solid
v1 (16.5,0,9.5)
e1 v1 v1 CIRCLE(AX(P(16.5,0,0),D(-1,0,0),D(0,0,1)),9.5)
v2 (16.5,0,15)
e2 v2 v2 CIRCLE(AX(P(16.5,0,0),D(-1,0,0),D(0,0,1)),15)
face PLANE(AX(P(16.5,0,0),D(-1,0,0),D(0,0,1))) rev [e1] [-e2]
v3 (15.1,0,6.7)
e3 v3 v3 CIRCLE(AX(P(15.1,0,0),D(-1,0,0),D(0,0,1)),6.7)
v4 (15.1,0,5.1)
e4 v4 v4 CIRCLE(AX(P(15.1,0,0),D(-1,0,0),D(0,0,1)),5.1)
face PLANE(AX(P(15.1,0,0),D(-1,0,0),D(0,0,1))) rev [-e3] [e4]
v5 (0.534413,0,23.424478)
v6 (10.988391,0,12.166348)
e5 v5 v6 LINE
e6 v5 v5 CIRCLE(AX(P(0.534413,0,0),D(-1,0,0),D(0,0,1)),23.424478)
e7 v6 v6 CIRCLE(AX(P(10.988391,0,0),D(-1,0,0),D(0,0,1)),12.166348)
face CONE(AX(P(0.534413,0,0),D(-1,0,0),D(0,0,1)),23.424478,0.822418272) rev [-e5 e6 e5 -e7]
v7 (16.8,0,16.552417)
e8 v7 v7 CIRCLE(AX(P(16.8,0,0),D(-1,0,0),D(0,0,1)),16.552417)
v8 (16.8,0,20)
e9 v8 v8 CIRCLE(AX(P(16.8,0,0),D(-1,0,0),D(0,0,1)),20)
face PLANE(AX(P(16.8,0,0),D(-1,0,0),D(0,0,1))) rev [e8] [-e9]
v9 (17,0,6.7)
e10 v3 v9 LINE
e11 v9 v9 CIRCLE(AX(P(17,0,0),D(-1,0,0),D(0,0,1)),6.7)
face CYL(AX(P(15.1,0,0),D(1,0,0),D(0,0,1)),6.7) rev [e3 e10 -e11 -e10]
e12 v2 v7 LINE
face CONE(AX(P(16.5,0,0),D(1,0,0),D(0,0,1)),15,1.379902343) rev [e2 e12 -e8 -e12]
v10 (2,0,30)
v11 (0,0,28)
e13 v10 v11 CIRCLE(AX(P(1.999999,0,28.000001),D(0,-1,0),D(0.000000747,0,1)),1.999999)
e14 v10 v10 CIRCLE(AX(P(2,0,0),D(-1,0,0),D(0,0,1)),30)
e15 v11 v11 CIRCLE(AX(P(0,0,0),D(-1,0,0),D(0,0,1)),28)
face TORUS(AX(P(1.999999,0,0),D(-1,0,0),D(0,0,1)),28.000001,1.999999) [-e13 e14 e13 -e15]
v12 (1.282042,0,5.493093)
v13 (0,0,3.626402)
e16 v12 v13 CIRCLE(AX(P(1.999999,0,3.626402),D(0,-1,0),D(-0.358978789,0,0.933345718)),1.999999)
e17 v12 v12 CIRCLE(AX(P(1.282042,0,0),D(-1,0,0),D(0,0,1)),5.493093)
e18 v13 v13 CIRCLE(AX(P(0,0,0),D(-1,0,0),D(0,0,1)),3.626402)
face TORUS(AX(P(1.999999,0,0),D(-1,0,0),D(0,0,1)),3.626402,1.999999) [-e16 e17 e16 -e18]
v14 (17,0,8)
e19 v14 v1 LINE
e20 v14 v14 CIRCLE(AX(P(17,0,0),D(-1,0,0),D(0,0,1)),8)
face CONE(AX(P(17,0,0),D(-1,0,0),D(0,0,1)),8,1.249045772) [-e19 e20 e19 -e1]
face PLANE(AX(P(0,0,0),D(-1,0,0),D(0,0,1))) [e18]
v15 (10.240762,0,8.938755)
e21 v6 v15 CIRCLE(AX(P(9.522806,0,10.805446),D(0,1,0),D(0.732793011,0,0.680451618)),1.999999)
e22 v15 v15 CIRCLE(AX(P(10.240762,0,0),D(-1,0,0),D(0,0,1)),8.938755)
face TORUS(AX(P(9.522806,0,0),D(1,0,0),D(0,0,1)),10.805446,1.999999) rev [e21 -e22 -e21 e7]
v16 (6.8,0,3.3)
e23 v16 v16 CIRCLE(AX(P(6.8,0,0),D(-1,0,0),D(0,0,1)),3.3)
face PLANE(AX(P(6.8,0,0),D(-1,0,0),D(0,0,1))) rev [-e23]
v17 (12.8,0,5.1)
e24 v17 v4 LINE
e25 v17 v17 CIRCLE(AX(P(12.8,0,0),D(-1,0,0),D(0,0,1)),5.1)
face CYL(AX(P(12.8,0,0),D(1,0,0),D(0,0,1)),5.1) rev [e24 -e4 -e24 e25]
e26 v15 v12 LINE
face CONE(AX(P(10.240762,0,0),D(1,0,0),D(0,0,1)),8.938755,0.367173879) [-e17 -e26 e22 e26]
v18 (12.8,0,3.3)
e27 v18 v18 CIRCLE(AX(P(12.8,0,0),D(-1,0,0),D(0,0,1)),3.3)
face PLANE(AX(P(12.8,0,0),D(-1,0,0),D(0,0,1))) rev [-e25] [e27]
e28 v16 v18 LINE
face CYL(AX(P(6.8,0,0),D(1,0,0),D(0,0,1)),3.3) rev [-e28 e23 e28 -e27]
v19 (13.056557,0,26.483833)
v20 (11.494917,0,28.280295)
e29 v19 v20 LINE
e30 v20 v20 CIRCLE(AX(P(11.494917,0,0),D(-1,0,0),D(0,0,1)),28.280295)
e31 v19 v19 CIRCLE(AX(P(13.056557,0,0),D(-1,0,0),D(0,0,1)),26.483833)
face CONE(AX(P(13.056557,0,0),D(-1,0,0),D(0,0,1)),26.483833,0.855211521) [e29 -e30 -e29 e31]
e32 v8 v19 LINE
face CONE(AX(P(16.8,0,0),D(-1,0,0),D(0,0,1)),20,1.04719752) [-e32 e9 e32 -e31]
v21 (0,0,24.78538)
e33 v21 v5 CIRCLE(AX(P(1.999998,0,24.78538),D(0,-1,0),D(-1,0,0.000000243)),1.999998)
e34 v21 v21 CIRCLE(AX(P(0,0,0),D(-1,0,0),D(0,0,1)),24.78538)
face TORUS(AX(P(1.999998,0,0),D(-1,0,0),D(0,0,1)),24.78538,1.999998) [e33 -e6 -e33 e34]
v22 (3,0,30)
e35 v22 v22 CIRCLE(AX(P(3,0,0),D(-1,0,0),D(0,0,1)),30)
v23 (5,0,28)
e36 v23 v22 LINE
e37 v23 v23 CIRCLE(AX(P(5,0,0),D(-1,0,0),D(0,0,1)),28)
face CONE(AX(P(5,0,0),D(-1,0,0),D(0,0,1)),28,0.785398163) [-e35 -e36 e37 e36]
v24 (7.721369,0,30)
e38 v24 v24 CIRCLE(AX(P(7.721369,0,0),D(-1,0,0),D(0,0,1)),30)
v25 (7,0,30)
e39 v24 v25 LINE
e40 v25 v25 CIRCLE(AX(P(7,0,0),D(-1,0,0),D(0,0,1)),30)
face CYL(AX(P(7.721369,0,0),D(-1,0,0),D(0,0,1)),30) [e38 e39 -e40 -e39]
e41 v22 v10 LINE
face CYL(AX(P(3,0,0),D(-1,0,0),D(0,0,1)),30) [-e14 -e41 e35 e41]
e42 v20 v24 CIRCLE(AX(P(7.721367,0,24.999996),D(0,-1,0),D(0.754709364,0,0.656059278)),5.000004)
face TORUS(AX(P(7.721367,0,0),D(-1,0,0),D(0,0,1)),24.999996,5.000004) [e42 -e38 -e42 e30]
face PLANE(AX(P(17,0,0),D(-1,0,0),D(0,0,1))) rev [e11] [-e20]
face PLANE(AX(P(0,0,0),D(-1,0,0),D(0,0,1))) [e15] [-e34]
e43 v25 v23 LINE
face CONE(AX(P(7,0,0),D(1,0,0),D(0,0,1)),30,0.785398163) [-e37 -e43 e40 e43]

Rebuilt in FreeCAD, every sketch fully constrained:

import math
import FreeCAD as App
import Part
import Sketcher
from FreeCAD import Vector
Q = App.Units.Quantity

doc = App.newDocument("Part")
body = doc.addObject("PartDesign::Body", "Body")

sketch1 = doc.addObject("Sketcher::SketchObject", "Sketch")
body.addObject(sketch1)
sketch1.AttachmentSupport = (doc.XZ_Plane, [""])
sketch1.MapMode = "FlatFace"
sketch1.addGeometry(Part.LineSegment(Vector(0, 3.6, 0), Vector(0, 0, 0)), False)
sketch1.addGeometry(Part.LineSegment(Vector(0, 0, 0), Vector(6.8, 0, 0)), False)
sketch1.addGeometry(Part.LineSegment(Vector(6.8, 0, 0), Vector(6.8, 3.3, 0)), False)
sketch1.addGeometry(Part.LineSegment(Vector(6.8, 3.3, 0), Vector(12.8, 3.3, 0)), False)
sketch1.addGeometry(Part.LineSegment(Vector(12.8, 3.3, 0), Vector(12.8, 5.1, 0)), False)
sketch1.addGeometry(Part.LineSegment(Vector(12.8, 5.1, 0), Vector(15.1, 5.1, 0)), False)
sketch1.addGeometry(Part.LineSegment(Vector(15.1, 5.1, 0), Vector(15.1, 6.7, 0)), False)
sketch1.addGeometry(Part.LineSegment(Vector(15.1, 6.7, 0), Vector(17, 6.7, 0)), False)
sketch1.addGeometry(Part.LineSegment(Vector(17, 6.7, 0), Vector(17, 8, 0)), False)
sketch1.addGeometry(Part.LineSegment(Vector(17, 8, 0), Vector(16.5, 9.5, 0)), False)
sketch1.addGeometry(Part.LineSegment(Vector(16.5, 9.5, 0), Vector(16.5, 15, 0)), False)
sketch1.addGeometry(Part.LineSegment(Vector(16.5, 15, 0), Vector(16.8, 16.6, 0)), False)
sketch1.addGeometry(Part.LineSegment(Vector(16.8, 16.6, 0), Vector(16.8, 20, 0)), False)
sketch1.addGeometry(Part.LineSegment(Vector(16.8, 20, 0), Vector(13.1, 26.5, 0)), False)
sketch1.addGeometry(Part.LineSegment(Vector(13.1, 26.5, 0), Vector(11.5, 28.3, 0)), False)
sketch1.addGeometry(Part.ArcOfCircle(Part.Circle(Vector(7.7, 25, 0), Vector(0, 0, 1), 5), math.radians(41), math.radians(90)), False)
sketch1.addGeometry(Part.LineSegment(Vector(7.7, 30, 0), Vector(7, 30, 0)), False)
sketch1.addGeometry(Part.LineSegment(Vector(7, 30, 0), Vector(5, 28, 0)), False)
sketch1.addGeometry(Part.LineSegment(Vector(5, 28, 0), Vector(3, 30, 0)), False)
sketch1.addGeometry(Part.LineSegment(Vector(3, 30, 0), Vector(2, 30, 0)), False)
sketch1.addGeometry(Part.ArcOfCircle(Part.Circle(Vector(2, 28, 0), Vector(0, 0, 1), 2), math.radians(90), math.radians(180)), False)
sketch1.addGeometry(Part.LineSegment(Vector(0, 28, 0), Vector(0, 24.8, 0)), False)
sketch1.addGeometry(Part.ArcOfCircle(Part.Circle(Vector(2, 24.8, 0), Vector(0, 0, 1), 2), math.radians(180), math.radians(223)), False)
sketch1.addGeometry(Part.LineSegment(Vector(0.5, 23.4, 0), Vector(11, 12.2, 0)), False)
sketch1.addGeometry(Part.ArcOfCircle(Part.Circle(Vector(9.5, 10.8, 0), Vector(0, 0, 1), 2), math.radians(-69), math.radians(43)), False)
sketch1.addGeometry(Part.LineSegment(Vector(10.2, 8.9, 0), Vector(1.3, 5.5, 0)), False)
sketch1.addGeometry(Part.ArcOfCircle(Part.Circle(Vector(2, 3.6, 0), Vector(0, 0, 1), 2), math.radians(111), math.radians(180)), False)
sketch1.addConstraint(Sketcher.Constraint("Coincident", 0, 2, 1, 1))
sketch1.addConstraint(Sketcher.Constraint("Coincident", 1, 2, 2, 1))
sketch1.addConstraint(Sketcher.Constraint("Coincident", 2, 2, 3, 1))
sketch1.addConstraint(Sketcher.Constraint("Coincident", 3, 2, 4, 1))
sketch1.addConstraint(Sketcher.Constraint("Coincident", 4, 2, 5, 1))
sketch1.addConstraint(Sketcher.Constraint("Coincident", 5, 2, 6, 1))
sketch1.addConstraint(Sketcher.Constraint("Coincident", 6, 2, 7, 1))
sketch1.addConstraint(Sketcher.Constraint("Coincident", 7, 2, 8, 1))
sketch1.addConstraint(Sketcher.Constraint("Coincident", 8, 2, 9, 1))
sketch1.addConstraint(Sketcher.Constraint("Coincident", 9, 2, 10, 1))
sketch1.addConstraint(Sketcher.Constraint("Coincident", 10, 2, 11, 1))
sketch1.addConstraint(Sketcher.Constraint("Coincident", 11, 2, 12, 1))
sketch1.addConstraint(Sketcher.Constraint("Coincident", 12, 2, 13, 1))
sketch1.addConstraint(Sketcher.Constraint("Coincident", 13, 2, 14, 1))
sketch1.addConstraint(Sketcher.Constraint("Tangent", 14, 2, 15, 1))
sketch1.addConstraint(Sketcher.Constraint("Tangent", 15, 2, 16, 1))
sketch1.addConstraint(Sketcher.Constraint("Coincident", 16, 2, 17, 1))
sketch1.addConstraint(Sketcher.Constraint("Coincident", 17, 2, 18, 1))
sketch1.addConstraint(Sketcher.Constraint("Coincident", 18, 2, 19, 1))
sketch1.addConstraint(Sketcher.Constraint("Tangent", 19, 2, 20, 1))
sketch1.addConstraint(Sketcher.Constraint("Tangent", 20, 2, 21, 1))
sketch1.addConstraint(Sketcher.Constraint("Tangent", 21, 2, 22, 1))
sketch1.addConstraint(Sketcher.Constraint("Tangent", 22, 2, 23, 1))
sketch1.addConstraint(Sketcher.Constraint("Tangent", 23, 2, 24, 2))
sketch1.addConstraint(Sketcher.Constraint("Tangent", 24, 1, 25, 1))
sketch1.addConstraint(Sketcher.Constraint("Tangent", 25, 2, 26, 1))
sketch1.addConstraint(Sketcher.Constraint("Tangent", 26, 2, 0, 1))
sketch1.addConstraint(Sketcher.Constraint("Vertical", 0))
sketch1.addConstraint(Sketcher.Constraint("Horizontal", 1))
sketch1.addConstraint(Sketcher.Constraint("Vertical", 2))
sketch1.addConstraint(Sketcher.Constraint("Horizontal", 3))
sketch1.addConstraint(Sketcher.Constraint("Vertical", 4))
sketch1.addConstraint(Sketcher.Constraint("Horizontal", 5))
sketch1.addConstraint(Sketcher.Constraint("Vertical", 6))
sketch1.addConstraint(Sketcher.Constraint("Horizontal", 7))
sketch1.addConstraint(Sketcher.Constraint("Vertical", 8))
sketch1.addConstraint(Sketcher.Constraint("Vertical", 10))
sketch1.addConstraint(Sketcher.Constraint("Vertical", 12))
sketch1.addConstraint(Sketcher.Constraint("Horizontal", 16))
sketch1.addConstraint(Sketcher.Constraint("Horizontal", 19))
sketch1.addConstraint(Sketcher.Constraint("Vertical", 21))
sketch1.addConstraint(Sketcher.Constraint("Coincident", 0, 2, -1, 1))
sketch1.addConstraint(Sketcher.Constraint("Equal", 20, 22))
sketch1.addConstraint(Sketcher.Constraint("Equal", 22, 24))
sketch1.addConstraint(Sketcher.Constraint("Equal", 24, 26))
sketch1.addConstraint(Sketcher.Constraint("PointOnObject", 20, 2, -2))
sketch1.addConstraint(Sketcher.Constraint("Perpendicular", 17, 18))
sketch1.addConstraint(Sketcher.Constraint("Horizontal", 20, 3, 17, 2))
sketch1.addConstraint(Sketcher.Constraint("Horizontal", 16, 2, 18, 2))
sketch1.addConstraint(Sketcher.Constraint("Equal", 9, 11))
sketch1.addConstraint(Sketcher.Constraint("Equal", 17, 18))
sketch1.addConstraint(Sketcher.Constraint("Radius", 20, 1.999999))
sketch1.addConstraint(Sketcher.Constraint("DistanceX", 3, 1, 3, 2, 6.0))
sketch1.addConstraint(Sketcher.Constraint("DistanceX", 19, 2, 19, 1, 1.0))
sketch1.addConstraint(Sketcher.Constraint("Angle", 13, Q("120.000002 deg")))
sketch1.addConstraint(Sketcher.Constraint("Angle", 14, Q("130.999989 deg")))
sketch1.addConstraint(Sketcher.Constraint("DistanceX", 1, 1, 1, 2, 6.8))
sketch1.addConstraint(Sketcher.Constraint("DistanceX", 5, 1, 5, 2, 2.3))
sketch1.addConstraint(Sketcher.Constraint("DistanceX", 7, 1, 7, 2, 1.9))
sketch1.addConstraint(Sketcher.Constraint("DistanceY", 2, 1, 2, 2, 3.3))
sketch1.addConstraint(Sketcher.Constraint("DistanceY", 4, 1, 4, 2, 1.8))
sketch1.addConstraint(Sketcher.Constraint("DistanceY", 6, 1, 6, 2, 1.6))
sketch1.addConstraint(Sketcher.Constraint("DistanceY", 8, 1, 8, 2, 1.3))
sketch1.addConstraint(Sketcher.Constraint("DistanceY", 10, 1, 10, 2, 5.5))
sketch1.addConstraint(Sketcher.Constraint("DistanceY", -1, 1, 20, 3, 28.000001))
sketch1.addConstraint(Sketcher.Constraint("DistanceY", -1, 1, 10, 2, 15.0))
sketch1.addConstraint(Sketcher.Constraint("DistanceY", -1, 1, 12, 2, 20.0))
sketch1.addConstraint(Sketcher.Constraint("DistanceX", -1, 1, 9, 2, 16.5))
sketch1.addConstraint(Sketcher.Constraint("DistanceX", -1, 1, 11, 2, 16.8))
sketch1.addConstraint(Sketcher.Constraint("Radius", 15, 5.000004))
sketch1.addConstraint(Sketcher.Constraint("DistanceX", 16, 2, 16, 1, 0.721369))
sketch1.addConstraint(Sketcher.Constraint("DistanceY", 21, 2, 21, 1, 3.21462))
sketch1.addConstraint(Sketcher.Constraint("DistanceY", 26, 3, 20, 3, 24.373599))
sketch1.addConstraint(Sketcher.Constraint("DistanceY", 22, 2, 21, 2, 1.360902))
sketch1.addConstraint(Sketcher.Constraint("DistanceX", -1, 1, 23, 2, 10.988391))
revolution = doc.addObject("PartDesign::Revolution", "Revolution")
body.addObject(revolution)
revolution.Profile = sketch1
revolution.ReferenceAxis = (sketch1, ["H_Axis"])
revolution.Angle = 360

doc.recompute()
